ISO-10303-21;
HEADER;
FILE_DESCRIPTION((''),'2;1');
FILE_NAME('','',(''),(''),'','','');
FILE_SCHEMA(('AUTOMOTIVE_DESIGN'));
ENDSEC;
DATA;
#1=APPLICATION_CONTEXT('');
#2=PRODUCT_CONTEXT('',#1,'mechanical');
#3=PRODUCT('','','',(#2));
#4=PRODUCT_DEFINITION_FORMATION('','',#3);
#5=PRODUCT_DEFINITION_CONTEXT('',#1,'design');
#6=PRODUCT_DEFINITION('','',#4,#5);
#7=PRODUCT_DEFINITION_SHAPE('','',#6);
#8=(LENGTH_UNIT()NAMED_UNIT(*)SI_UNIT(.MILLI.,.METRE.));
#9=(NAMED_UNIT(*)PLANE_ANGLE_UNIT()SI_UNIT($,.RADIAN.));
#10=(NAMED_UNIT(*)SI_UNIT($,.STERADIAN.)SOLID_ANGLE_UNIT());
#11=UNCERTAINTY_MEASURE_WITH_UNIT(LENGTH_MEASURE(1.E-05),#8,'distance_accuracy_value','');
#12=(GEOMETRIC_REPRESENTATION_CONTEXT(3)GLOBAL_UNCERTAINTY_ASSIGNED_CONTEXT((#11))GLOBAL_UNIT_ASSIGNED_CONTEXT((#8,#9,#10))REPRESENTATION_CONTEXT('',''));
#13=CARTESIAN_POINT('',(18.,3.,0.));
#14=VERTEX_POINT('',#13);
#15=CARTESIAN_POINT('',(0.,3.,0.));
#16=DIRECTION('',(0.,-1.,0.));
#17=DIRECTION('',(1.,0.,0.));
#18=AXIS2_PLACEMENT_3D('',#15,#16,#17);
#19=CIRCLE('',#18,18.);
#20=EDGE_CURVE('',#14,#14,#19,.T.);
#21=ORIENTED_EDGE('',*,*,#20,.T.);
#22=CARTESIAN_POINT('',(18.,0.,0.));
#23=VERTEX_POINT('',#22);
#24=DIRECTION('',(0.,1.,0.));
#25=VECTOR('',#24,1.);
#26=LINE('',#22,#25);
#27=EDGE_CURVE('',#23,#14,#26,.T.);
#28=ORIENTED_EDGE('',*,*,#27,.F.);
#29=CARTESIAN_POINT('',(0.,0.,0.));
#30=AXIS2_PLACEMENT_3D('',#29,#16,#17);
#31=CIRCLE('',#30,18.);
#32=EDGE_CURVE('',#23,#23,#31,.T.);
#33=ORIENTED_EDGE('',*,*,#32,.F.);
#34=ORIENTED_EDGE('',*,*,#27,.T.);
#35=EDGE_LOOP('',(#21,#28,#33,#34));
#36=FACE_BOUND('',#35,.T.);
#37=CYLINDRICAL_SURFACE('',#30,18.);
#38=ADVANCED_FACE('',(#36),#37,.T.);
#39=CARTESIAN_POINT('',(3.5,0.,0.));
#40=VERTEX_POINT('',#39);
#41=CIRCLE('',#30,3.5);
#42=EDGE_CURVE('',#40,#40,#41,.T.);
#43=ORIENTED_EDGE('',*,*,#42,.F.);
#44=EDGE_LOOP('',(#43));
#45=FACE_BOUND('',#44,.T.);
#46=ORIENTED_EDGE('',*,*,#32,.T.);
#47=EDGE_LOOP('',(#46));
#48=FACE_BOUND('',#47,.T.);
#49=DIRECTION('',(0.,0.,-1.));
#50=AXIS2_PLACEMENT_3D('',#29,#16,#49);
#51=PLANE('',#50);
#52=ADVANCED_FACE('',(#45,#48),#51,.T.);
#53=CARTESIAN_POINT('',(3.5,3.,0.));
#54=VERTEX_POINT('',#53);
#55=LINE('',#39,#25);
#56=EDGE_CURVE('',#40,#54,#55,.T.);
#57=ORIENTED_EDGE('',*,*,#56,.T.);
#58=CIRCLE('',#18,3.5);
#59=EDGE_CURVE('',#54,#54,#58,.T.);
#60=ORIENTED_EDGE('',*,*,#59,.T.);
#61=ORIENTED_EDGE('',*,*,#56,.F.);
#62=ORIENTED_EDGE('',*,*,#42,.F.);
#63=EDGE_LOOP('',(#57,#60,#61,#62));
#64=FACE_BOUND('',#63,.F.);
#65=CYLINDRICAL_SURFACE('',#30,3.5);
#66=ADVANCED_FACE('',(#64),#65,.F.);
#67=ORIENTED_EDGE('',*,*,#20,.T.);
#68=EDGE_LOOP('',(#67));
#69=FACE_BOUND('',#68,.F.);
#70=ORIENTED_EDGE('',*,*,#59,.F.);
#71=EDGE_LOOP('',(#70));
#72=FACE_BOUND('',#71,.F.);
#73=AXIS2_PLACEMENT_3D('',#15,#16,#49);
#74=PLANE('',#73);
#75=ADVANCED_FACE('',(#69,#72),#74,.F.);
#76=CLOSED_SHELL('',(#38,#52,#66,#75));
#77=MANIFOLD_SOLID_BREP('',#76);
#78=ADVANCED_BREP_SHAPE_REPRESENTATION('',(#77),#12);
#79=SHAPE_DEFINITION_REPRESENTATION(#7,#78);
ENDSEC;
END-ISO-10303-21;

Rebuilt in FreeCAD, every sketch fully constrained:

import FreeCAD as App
import Part
import Sketcher

V = App.Vector
Q = App.Units.Quantity

doc = App.newDocument("Part")
body = doc.addObject("PartDesign::Body", "Body")

# Sketch on XZ plane
sketch1 = body.newObject("Sketcher::SketchObject", "Sketch")
sketch1.AttachmentSupport = (doc.getObject("XZ_Plane"), [""])
sketch1.MapMode = "FlatFace"
sketch1.addGeometry(Part.Circle(V(0, 0, 0), V(0, 0, 1), 18), False)
sketch1.addGeometry(Part.Circle(V(0, 0, 0), V(0, 0, 1), 3.5), False)
sketch1.addConstraint(Sketcher.Constraint("Coincident", 0, 3, -1, 1))
sketch1.addConstraint(Sketcher.Constraint("Coincident", 1, 3, -1, 1))
sketch1.addConstraint(Sketcher.Constraint("Diameter", 0, Q("36 mm")))
sketch1.addConstraint(Sketcher.Constraint("Diameter", 1, Q("7 mm")))
pad1 = body.newObject("PartDesign::Pad", "Pad")
pad1.Profile = sketch1
pad1.Length = 3
pad1.Reversed = True

doc.recompute()
